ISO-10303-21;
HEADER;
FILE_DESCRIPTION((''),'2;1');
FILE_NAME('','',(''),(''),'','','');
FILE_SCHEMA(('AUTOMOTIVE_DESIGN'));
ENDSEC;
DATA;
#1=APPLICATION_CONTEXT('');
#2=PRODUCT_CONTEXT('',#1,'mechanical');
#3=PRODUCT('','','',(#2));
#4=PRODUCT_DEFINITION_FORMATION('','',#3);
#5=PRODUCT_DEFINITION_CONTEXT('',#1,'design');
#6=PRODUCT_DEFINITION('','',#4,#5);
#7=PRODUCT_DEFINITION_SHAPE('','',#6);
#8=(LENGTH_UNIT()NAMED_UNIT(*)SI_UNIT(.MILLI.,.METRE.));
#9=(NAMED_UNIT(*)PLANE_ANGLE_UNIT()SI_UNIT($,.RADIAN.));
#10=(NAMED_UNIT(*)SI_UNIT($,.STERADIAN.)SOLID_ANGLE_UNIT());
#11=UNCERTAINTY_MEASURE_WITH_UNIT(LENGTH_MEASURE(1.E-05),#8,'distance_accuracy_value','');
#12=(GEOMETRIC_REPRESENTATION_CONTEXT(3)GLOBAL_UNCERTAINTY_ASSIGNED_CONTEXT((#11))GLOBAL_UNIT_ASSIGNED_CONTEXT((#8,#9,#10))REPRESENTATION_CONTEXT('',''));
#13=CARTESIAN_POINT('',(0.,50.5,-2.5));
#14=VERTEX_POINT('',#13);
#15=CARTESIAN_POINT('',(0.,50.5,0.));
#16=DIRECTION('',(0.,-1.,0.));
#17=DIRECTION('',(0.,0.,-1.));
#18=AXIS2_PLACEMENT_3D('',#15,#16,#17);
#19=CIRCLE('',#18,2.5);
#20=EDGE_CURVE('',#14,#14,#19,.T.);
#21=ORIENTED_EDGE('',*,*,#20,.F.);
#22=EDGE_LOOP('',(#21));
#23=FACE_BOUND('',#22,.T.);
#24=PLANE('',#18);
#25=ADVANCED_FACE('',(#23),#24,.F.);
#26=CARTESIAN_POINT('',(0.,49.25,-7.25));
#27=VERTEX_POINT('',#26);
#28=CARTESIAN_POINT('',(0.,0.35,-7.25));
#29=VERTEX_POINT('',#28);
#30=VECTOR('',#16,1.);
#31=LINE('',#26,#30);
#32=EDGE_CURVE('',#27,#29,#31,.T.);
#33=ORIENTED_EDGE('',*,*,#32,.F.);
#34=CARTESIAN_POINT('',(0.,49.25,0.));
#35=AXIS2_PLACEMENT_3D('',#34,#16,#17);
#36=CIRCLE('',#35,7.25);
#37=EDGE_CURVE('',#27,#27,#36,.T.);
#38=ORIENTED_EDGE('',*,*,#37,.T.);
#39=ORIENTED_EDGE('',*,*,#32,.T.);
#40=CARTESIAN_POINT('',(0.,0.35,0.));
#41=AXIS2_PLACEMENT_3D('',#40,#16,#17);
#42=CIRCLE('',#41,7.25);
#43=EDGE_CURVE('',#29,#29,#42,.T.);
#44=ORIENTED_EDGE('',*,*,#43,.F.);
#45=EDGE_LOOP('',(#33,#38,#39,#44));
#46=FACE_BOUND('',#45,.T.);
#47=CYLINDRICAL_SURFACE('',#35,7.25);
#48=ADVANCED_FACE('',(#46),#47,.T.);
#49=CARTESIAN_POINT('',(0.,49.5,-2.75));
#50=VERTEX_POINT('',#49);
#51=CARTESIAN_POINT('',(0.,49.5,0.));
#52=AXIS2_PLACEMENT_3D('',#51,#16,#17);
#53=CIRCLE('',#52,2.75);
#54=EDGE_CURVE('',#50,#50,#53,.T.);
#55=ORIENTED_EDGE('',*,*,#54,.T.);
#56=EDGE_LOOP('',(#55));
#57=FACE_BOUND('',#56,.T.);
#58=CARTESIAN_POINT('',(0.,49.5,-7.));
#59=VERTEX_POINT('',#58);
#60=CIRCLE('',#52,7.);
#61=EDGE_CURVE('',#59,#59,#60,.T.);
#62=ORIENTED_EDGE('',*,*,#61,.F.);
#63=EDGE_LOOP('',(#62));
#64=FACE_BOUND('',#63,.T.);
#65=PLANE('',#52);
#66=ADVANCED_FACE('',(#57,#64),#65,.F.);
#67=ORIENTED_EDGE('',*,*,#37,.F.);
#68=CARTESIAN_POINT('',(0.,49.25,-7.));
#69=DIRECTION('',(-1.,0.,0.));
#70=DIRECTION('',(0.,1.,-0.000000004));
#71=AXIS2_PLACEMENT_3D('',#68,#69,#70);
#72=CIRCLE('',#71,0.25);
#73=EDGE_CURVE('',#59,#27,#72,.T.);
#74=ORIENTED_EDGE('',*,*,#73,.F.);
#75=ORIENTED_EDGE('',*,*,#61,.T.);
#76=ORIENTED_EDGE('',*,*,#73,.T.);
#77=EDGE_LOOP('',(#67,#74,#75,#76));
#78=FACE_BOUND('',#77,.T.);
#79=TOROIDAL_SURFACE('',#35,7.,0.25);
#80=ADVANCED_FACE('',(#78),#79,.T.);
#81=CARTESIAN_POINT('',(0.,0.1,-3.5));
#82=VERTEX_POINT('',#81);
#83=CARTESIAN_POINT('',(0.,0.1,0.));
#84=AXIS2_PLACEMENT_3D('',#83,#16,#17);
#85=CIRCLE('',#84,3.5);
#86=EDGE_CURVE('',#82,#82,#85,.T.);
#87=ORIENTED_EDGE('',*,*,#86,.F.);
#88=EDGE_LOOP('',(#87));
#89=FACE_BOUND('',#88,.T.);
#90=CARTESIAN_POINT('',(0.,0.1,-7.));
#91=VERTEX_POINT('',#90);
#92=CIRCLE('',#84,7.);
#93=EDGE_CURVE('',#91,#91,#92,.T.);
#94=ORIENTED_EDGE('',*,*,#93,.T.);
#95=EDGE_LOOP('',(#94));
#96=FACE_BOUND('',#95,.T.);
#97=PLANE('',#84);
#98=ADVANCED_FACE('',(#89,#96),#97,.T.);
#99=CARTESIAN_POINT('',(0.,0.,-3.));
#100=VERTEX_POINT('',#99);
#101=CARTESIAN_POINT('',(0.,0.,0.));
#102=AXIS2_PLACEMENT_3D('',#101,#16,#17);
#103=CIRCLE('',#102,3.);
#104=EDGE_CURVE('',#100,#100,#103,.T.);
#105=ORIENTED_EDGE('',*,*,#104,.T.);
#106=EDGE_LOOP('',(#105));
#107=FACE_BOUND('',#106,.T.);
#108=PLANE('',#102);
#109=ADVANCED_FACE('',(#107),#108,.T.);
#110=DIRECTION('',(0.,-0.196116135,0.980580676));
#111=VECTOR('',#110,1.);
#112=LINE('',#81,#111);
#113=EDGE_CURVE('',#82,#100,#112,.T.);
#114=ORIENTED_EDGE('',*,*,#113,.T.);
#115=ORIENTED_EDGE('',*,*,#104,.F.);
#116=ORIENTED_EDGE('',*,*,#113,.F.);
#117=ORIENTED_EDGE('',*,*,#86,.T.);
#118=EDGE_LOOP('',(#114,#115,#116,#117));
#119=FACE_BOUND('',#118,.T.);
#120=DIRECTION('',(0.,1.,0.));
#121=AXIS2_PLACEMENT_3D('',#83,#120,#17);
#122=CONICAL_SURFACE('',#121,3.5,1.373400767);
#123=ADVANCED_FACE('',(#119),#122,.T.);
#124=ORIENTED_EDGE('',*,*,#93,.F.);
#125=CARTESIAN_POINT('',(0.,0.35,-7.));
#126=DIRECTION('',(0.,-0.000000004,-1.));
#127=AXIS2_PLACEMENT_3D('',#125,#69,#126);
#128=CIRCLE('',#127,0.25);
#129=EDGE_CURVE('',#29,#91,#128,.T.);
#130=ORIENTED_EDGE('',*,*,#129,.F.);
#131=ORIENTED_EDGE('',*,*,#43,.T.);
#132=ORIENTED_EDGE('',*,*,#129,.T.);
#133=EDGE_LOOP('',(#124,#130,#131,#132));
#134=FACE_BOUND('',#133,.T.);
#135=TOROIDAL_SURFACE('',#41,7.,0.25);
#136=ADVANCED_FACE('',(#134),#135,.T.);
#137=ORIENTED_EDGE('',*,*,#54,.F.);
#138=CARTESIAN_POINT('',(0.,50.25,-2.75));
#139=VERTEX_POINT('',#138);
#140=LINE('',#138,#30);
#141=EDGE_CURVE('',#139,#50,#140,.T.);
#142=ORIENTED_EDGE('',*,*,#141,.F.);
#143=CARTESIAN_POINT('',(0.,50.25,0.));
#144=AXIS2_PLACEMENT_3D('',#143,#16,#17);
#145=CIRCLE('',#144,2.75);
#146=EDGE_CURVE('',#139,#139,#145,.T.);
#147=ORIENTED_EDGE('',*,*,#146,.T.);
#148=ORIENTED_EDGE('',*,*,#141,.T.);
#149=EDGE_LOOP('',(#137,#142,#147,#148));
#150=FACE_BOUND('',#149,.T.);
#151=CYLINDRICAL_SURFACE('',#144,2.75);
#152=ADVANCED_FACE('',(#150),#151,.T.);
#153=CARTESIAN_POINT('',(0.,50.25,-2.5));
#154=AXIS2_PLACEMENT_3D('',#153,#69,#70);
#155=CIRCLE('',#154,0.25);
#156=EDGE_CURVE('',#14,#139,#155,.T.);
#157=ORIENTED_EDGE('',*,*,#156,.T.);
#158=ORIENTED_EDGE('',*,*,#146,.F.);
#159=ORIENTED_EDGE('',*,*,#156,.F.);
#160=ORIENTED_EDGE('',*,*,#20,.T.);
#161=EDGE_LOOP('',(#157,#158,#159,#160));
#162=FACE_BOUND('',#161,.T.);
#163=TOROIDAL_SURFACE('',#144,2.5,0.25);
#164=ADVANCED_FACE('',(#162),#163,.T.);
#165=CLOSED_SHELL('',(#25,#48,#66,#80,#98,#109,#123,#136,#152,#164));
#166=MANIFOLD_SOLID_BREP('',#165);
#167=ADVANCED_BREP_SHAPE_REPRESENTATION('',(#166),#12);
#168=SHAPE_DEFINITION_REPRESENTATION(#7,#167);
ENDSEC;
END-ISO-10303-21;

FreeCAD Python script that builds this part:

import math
import FreeCAD as App
import Part
import Sketcher

V = App.Vector
Q = App.Units.Quantity

doc = App.newDocument("Part")
body = doc.addObject("PartDesign::Body", "Body")

# Sketch on YZ plane
sketch1 = doc.addObject("Sketcher::SketchObject", "Sketch")
body.addObject(sketch1)
sketch1.AttachmentSupport = (doc.YZ_Plane, [""])
sketch1.MapMode = "FlatFace"
sketch1.addGeometry([
    Part.LineSegment(V(50.5, 0, 0), V(0, 0, 0)),  # 0
    Part.LineSegment(V(0, 0, 0), V(0, -3, 0)),  # 1
    Part.LineSegment(V(0, -3, 0), V(0.1, -3.5, 0)),  # 2
    Part.LineSegment(V(0.1, -3.5, 0), V(0.1, -7, 0)),  # 3
    Part.ArcOfCircle(Part.Circle(V(0.35, -7, 0), V(0, 0, 1), 0.25), math.radians(-180), math.radians(-90)),  # 4
    Part.LineSegment(V(0.35, -7.25, 0), V(49.25, -7.25, 0)),  # 5
    Part.ArcOfCircle(Part.Circle(V(49.25, -7, 0), V(0, 0, 1), 0.25), math.radians(-90), math.radians(0)),  # 6
    Part.LineSegment(V(49.5, -7, 0), V(49.5, -2.75, 0)),  # 7
    Part.LineSegment(V(49.5, -2.75, 0), V(50.25, -2.75, 0)),  # 8
    Part.ArcOfCircle(Part.Circle(V(50.25, -2.5, 0), V(0, 0, 1), 0.25), math.radians(-90), math.radians(0)),  # 9
    Part.LineSegment(V(50.5, -2.5, 0), V(50.5, 0, 0)),  # 10
], False)
sketch1.addConstraint([
    Sketcher.Constraint("Coincident", 0, 2, 1, 1),
    Sketcher.Constraint("Coincident", 1, 2, 2, 1),
    Sketcher.Constraint("Coincident", 2, 2, 3, 1),
    Sketcher.Constraint("Tangent", 3, 2, 4, 1),
    Sketcher.Constraint("Tangent", 4, 2, 5, 1),
    Sketcher.Constraint("Tangent", 5, 2, 6, 1),
    Sketcher.Constraint("Tangent", 6, 2, 7, 1),
    Sketcher.Constraint("Coincident", 7, 2, 8, 1),
    Sketcher.Constraint("Tangent", 8, 2, 9, 1),
    Sketcher.Constraint("Tangent", 9, 2, 10, 1),
    Sketcher.Constraint("Coincident", 10, 2, 0, 1),
    Sketcher.Constraint("Horizontal", 0),
    Sketcher.Constraint("Vertical", 1),
    Sketcher.Constraint("Vertical", 3),
    Sketcher.Constraint("Horizontal", 5),
    Sketcher.Constraint("Vertical", 7),
    Sketcher.Constraint("Horizontal", 8),
    Sketcher.Constraint("Vertical", 10),
    Sketcher.Constraint("Coincident", 0, 2, -1, 1),
    Sketcher.Constraint("Equal", 4, 6),
    Sketcher.Constraint("Equal", 6, 9),
    Sketcher.Constraint("DistanceY", 1, 2, 1, 1, Q("3 mm")),
    Sketcher.Constraint("Radius", 4, Q("0.25 mm")),
    Sketcher.Constraint("DistanceX", 0, 2, 0, 1, Q("50.5 mm")),
    Sketcher.Constraint("DistanceX", 5, 1, 5, 2, Q("48.9 mm")),
    Sketcher.Constraint("DistanceY", 3, 2, 3, 1, Q("3.5 mm")),
    Sketcher.Constraint("DistanceY", 10, 1, 10, 2, Q("2.5 mm")),
    Sketcher.Constraint("DistanceY", 4, 3, -1, 1, Q("7 mm")),
    Sketcher.Constraint("DistanceX", 6, 3, 9, 3, Q("1 mm")),
])
revolution = doc.addObject("PartDesign::Revolution", "Revolution")
body.addObject(revolution)
revolution.Profile = sketch1
revolution.ReferenceAxis = (sketch1, ["H_Axis"])
revolution.Angle = 360

doc.recompute()
